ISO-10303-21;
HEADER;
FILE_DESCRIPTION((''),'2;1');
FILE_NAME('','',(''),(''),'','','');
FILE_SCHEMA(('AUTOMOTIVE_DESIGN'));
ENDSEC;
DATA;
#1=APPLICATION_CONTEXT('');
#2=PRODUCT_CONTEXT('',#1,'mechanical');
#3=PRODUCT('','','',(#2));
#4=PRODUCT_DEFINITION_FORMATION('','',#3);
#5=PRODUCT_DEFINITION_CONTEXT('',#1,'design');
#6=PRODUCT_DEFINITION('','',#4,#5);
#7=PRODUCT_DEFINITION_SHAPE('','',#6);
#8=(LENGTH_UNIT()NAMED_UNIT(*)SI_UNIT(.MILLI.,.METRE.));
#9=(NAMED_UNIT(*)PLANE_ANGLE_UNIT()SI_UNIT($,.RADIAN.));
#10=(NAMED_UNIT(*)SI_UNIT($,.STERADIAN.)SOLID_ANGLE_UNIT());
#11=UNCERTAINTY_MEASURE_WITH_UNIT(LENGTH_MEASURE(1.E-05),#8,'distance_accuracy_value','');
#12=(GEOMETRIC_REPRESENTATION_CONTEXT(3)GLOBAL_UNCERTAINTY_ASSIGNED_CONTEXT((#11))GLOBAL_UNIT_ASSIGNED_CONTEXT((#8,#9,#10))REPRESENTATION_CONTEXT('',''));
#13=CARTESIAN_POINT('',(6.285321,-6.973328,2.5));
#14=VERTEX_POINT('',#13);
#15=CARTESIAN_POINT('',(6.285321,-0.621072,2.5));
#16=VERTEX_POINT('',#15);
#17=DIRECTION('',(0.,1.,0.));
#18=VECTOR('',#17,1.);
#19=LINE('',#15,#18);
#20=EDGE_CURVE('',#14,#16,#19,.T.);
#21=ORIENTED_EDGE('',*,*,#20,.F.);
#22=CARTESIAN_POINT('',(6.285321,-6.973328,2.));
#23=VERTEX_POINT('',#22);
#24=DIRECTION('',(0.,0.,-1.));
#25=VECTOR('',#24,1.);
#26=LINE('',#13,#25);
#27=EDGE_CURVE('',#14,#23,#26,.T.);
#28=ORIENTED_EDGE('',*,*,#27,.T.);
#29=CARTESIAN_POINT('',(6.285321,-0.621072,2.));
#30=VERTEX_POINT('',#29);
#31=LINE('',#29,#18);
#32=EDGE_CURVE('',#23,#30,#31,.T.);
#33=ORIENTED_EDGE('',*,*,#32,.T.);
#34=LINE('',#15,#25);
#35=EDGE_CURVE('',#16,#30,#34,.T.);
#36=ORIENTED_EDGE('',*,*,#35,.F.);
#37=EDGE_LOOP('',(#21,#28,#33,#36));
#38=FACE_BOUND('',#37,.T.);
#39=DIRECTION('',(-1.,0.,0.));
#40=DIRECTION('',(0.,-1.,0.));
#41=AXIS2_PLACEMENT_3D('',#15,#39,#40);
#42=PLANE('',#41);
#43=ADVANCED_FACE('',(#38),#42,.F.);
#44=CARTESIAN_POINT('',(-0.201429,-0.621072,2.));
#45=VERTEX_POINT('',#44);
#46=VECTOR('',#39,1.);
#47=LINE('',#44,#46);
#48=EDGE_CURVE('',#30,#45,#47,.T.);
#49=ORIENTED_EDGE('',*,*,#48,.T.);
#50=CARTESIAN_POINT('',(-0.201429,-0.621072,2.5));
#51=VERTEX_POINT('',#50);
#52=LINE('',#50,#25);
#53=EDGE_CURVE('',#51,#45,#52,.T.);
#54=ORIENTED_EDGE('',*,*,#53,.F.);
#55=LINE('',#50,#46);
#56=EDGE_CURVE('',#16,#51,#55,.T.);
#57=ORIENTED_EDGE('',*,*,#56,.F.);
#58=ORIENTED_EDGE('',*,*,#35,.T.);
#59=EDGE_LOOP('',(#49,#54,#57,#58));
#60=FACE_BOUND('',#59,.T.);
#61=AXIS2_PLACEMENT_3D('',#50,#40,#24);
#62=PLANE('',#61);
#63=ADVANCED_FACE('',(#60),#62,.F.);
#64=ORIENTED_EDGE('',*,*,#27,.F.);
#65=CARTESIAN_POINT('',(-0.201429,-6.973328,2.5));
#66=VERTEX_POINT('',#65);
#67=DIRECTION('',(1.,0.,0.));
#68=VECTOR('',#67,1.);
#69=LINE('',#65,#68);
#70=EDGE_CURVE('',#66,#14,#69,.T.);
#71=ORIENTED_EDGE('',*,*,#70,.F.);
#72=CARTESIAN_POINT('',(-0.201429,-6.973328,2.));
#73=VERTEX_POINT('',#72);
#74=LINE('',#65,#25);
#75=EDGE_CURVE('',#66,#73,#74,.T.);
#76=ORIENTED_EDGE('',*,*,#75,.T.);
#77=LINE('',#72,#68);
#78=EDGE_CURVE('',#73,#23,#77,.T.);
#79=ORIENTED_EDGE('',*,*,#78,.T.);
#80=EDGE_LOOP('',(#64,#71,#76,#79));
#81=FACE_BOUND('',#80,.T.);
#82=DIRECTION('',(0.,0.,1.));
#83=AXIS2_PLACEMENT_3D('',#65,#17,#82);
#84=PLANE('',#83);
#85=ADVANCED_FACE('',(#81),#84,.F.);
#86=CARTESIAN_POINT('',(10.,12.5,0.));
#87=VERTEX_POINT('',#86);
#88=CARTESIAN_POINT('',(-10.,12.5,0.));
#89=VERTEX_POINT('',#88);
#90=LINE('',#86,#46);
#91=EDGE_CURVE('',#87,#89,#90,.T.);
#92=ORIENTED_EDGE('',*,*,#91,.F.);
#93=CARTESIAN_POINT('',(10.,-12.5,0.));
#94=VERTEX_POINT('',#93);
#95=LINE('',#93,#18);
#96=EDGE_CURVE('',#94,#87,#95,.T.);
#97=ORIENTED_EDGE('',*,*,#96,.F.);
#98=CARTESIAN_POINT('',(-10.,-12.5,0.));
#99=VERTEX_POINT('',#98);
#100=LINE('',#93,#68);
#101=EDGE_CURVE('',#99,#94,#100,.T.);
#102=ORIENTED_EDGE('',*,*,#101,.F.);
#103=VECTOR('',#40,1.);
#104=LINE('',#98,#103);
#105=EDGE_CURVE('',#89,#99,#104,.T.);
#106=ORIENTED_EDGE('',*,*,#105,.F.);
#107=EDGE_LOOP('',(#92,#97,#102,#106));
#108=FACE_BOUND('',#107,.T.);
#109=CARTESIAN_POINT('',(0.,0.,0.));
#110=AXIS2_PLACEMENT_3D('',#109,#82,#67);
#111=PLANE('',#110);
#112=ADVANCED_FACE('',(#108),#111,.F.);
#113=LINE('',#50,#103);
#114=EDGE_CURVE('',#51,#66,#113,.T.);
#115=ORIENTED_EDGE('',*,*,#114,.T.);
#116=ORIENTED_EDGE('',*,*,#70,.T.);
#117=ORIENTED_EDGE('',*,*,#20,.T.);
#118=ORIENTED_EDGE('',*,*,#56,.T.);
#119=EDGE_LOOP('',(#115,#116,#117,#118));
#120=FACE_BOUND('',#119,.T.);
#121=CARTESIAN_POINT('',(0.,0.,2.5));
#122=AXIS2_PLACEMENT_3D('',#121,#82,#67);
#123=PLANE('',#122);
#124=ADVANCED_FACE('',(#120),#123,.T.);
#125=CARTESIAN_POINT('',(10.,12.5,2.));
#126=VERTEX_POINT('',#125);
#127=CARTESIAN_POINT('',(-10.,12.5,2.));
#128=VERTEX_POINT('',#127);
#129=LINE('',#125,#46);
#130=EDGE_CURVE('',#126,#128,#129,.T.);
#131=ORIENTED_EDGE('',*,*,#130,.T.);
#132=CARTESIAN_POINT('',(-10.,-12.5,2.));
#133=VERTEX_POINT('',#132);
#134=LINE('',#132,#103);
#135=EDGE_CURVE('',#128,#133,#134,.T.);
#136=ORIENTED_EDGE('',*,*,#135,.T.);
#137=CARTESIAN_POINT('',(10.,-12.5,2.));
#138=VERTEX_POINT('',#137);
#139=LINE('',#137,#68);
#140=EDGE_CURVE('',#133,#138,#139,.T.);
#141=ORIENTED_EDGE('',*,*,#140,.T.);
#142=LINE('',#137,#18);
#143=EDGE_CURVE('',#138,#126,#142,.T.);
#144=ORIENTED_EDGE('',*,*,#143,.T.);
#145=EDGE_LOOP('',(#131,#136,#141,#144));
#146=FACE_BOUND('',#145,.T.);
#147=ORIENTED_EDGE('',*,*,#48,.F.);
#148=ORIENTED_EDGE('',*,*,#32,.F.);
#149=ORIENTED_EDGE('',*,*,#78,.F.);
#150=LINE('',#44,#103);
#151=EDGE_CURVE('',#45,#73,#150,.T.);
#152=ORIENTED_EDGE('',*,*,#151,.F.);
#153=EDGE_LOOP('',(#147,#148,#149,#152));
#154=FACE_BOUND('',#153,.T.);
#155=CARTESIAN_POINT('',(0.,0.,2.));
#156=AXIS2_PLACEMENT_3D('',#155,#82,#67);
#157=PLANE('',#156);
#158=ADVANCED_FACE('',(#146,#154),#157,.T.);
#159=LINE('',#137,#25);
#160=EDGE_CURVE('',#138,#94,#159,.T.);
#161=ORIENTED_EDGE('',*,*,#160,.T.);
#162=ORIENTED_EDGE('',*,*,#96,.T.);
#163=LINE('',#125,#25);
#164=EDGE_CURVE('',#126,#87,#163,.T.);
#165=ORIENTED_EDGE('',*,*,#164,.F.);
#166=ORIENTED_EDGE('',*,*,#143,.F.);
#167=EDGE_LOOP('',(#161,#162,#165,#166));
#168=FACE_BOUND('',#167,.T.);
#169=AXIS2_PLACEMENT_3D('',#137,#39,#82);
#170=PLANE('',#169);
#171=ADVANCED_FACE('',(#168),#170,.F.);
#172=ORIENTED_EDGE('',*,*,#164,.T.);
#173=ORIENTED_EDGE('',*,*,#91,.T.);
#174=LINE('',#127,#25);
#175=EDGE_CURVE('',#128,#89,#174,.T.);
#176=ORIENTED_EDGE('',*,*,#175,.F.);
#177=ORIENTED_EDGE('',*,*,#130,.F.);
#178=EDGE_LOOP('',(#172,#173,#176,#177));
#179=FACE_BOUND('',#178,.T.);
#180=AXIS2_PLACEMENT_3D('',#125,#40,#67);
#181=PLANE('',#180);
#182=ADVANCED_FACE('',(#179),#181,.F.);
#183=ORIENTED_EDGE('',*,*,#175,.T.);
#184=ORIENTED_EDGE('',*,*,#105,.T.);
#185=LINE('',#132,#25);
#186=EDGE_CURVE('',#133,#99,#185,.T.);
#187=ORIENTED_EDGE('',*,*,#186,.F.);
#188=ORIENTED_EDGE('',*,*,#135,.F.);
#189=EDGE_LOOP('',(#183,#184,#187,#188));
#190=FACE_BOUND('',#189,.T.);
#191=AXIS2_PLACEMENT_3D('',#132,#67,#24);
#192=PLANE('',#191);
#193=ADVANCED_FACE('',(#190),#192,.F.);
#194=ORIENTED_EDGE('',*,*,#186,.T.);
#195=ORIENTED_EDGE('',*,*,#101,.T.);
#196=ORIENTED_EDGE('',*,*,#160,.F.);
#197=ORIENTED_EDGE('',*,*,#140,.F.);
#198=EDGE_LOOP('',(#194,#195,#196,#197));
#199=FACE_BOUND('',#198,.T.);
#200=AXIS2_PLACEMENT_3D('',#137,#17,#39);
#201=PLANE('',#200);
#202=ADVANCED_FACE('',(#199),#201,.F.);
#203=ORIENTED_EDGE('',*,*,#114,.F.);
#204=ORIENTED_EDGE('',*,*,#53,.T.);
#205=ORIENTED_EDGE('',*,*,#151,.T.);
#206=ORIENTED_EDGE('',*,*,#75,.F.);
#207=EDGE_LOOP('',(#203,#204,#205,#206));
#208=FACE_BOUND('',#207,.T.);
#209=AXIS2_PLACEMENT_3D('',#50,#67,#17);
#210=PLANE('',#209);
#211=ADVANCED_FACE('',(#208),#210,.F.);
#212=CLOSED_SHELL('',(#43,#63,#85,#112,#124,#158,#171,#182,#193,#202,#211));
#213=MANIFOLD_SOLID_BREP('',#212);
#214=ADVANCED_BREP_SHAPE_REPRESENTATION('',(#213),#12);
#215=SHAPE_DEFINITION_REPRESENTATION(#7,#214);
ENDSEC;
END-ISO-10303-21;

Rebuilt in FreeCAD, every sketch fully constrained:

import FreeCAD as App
import Part
import Sketcher
Q = App.Units.Quantity


def add_polygon(sketch, points):
    """Adds a closed chain of lines whose ends are joined by coincident constraints."""
    first, n = sketch.GeometryCount, len(points)
    for a, b in zip(points, points[1:] + points[:1]):
        sketch.addGeometry(Part.LineSegment(App.Vector(*a, 0), App.Vector(*b, 0)), False)
    for i in range(n):
        sketch.addConstraint(Sketcher.Constraint("Coincident", first + i, 2, first + (i + 1) % n, 1))

doc = App.newDocument("Part")
body = doc.addObject("PartDesign::Body", "Body")

sketch1 = doc.addObject("Sketcher::SketchObject", "Sketch")
body.addObject(sketch1)
sketch1.AttachmentSupport = (doc.XY_Plane, [""])
sketch1.MapMode = "FlatFace"
add_polygon(sketch1, [(-10, 12), (-10, -12), (10, -12), (10, 12)])
sketch1.addConstraint([
    Sketcher.Constraint("Vertical", 0),
    Sketcher.Constraint("Horizontal", 1),
    Sketcher.Constraint("Vertical", 2),
    Sketcher.Constraint("Horizontal", 3),
    Sketcher.Constraint("Symmetric", 0, 2, 2, 2, -1, 1),
    Sketcher.Constraint("DistanceX", 1, 1, 1, 2, Q("20 mm")),
    Sketcher.Constraint("DistanceY", 0, 2, 0, 1, Q("25 mm")),
])
pad1 = doc.addObject("PartDesign::Pad", "Pad")
body.addObject(pad1)
pad1.Profile = sketch1
pad1.Length = 2

sketch2 = doc.addObject("Sketcher::SketchObject", "Sketch001")
body.addObject(sketch2)
sketch2.AttachmentSupport = (doc.XY_Plane, [""])
sketch2.MapMode = "FlatFace"
sketch2.AttachmentOffset = App.Placement(App.Vector(0, 0, 2), App.Rotation())
add_polygon(sketch2, [(0, -1), (0, -7), (6, -7), (6, -1)])
sketch2.addConstraint([
    Sketcher.Constraint("Vertical", 0),
    Sketcher.Constraint("Horizontal", 1),
    Sketcher.Constraint("Vertical", 2),
    Sketcher.Constraint("Horizontal", 3),
    Sketcher.Constraint("DistanceX", 1, 1, 1, 2, Q("6.48675 mm")),
    Sketcher.Constraint("DistanceY", 0, 2, 0, 1, Q("6.352255 mm")),
    Sketcher.Constraint("DistanceX", 0, 2, -1, 1, Q("0.201429 mm")),
    Sketcher.Constraint("DistanceY", 0, 2, -1, 1, Q("6.973328 mm")),
])
pad2 = doc.addObject("PartDesign::Pad", "Pad001")
body.addObject(pad2)
pad2.Profile = sketch2
pad2.Length = 0.5

doc.recompute()
